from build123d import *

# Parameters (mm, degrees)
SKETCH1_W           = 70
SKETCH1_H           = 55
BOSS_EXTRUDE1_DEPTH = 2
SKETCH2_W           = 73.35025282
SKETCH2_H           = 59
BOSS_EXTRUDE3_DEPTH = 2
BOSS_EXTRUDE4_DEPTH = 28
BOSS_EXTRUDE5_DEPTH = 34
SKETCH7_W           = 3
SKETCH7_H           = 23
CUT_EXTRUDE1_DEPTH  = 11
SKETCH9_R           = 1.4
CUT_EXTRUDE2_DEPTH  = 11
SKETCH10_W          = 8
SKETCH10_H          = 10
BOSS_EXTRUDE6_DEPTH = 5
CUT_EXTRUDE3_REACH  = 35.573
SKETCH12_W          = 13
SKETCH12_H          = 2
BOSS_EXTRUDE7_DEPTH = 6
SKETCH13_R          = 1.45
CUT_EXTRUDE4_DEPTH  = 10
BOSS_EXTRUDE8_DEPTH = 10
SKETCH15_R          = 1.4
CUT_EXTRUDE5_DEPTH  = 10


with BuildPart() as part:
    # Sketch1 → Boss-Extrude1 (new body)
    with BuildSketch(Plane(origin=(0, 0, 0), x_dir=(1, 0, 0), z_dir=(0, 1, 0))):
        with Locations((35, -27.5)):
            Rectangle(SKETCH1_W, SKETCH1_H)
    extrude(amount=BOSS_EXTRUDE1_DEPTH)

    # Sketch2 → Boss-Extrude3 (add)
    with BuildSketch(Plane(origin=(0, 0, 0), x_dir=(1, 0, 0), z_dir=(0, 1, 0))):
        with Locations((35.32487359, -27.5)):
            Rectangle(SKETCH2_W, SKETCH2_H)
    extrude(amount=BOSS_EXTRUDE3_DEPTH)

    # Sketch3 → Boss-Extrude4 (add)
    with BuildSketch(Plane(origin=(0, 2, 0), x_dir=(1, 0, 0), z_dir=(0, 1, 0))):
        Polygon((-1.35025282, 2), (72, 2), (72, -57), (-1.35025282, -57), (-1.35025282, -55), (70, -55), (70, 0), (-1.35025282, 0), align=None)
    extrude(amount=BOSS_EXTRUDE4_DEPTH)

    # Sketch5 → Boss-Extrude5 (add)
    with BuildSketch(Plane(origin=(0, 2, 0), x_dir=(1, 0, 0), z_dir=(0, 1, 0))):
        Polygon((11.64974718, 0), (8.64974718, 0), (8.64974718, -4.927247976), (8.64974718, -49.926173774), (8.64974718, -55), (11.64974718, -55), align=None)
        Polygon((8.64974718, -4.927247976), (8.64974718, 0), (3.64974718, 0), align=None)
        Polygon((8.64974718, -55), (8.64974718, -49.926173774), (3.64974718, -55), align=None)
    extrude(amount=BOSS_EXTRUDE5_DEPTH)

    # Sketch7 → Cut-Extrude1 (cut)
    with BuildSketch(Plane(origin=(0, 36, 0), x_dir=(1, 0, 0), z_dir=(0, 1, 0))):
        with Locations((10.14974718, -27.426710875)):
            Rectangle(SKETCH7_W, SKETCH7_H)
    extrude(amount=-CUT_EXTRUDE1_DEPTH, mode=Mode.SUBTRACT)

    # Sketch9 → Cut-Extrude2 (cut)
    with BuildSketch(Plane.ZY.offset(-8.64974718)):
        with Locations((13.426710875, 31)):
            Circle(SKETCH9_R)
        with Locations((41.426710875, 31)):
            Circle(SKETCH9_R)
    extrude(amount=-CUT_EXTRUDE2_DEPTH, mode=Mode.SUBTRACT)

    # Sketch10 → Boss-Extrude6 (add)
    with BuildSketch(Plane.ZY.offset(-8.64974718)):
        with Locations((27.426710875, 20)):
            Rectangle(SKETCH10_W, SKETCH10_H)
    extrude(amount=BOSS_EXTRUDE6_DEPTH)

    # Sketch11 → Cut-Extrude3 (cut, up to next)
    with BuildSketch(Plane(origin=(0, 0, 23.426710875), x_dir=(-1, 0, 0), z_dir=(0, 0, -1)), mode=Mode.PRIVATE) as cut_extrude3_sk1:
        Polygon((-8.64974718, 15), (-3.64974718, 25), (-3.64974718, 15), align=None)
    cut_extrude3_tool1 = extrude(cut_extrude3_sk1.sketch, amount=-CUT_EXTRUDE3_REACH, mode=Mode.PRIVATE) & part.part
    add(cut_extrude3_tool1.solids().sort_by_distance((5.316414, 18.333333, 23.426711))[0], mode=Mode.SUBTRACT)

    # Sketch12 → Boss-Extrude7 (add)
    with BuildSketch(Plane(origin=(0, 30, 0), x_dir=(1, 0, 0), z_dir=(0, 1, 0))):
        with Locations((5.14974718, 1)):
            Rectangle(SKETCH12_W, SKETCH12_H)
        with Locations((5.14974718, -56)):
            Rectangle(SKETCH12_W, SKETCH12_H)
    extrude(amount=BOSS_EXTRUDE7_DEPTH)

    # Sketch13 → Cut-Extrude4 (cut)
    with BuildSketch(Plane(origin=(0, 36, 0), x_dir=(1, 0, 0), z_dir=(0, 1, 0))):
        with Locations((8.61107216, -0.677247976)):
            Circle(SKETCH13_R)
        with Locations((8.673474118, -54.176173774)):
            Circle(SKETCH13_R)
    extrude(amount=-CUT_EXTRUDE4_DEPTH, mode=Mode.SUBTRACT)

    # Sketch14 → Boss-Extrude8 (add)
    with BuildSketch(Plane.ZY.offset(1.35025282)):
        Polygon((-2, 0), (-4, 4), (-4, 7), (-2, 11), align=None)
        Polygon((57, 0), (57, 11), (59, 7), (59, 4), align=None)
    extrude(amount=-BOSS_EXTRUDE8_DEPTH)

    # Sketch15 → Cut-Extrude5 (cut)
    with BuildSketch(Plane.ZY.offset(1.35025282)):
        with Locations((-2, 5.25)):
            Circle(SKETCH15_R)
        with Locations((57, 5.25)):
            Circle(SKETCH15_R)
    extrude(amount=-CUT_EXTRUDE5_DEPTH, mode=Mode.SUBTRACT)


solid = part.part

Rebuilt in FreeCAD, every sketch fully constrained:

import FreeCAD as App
import Part
import Sketcher
from FreeCAD import Vector
Q = App.Units.Quantity


def add_polygon(sketch, points):
    """Adds a closed chain of lines whose ends are joined by coincident constraints."""
    first, n = sketch.GeometryCount, len(points)
    for a, b in zip(points, points[1:] + points[:1]):
        sketch.addGeometry(Part.LineSegment(App.Vector(*a, 0), App.Vector(*b, 0)), False)
    for i in range(n):
        sketch.addConstraint(Sketcher.Constraint("Coincident", first + i, 2, first + (i + 1) % n, 1))

doc = App.newDocument("Part")
params = doc.addObject("Spreadsheet::Sheet", "Params")
for row, (alias, value) in enumerate([
    ("sketch1_width", "70 mm"),
    ("sketch1_height", "55 mm"),
    ("pad1_length", "2 mm"),
    ("sketch2_height", "59 mm"),
    ("pad2_length", "2 mm"),
    ("sketch3_height", "2 mm"),
    ("sketch3_height2", "55 mm"),
    ("pad3_length", "28 mm"),
    ("sketch4_width", "8 mm"),
    ("sketch4_height", "55 mm"),
    ("pad4_length", "34 mm"),
    ("sketch5_width", "3 mm"),
    ("sketch5_height", "23 mm"),
    ("pocket1_length", "11 mm"),
    ("sketch6_diameter", "2.8 mm"),
    ("pocket2_length", "11 mm"),
    ("sketch7_width", "10 mm"),
    ("sketch7_height", "8 mm"),
    ("pad5_length", "5 mm"),
    ("sketch8_width", "5 mm"),
    ("sketch8_height", "10 mm"),
    ("sketch9_width", "13 mm"),
    ("sketch9_height", "2 mm"),
    ("pad6_length", "6 mm"),
    ("sketch10_diameter", "2.9 mm"),
    ("pocket4_length", "10 mm"),
    ("sketch11_width", "11 mm"),
    ("sketch11_width2", "3 mm"),
    ("pad7_length", "10 mm"),
    ("sketch12_diameter", "2.8 mm"),
    ("pocket5_length", "10 mm"),
], start=1):
    params.set(f"A{row}", alias)
    params.set(f"B{row}", "=" + value)
    params.setAlias(f"B{row}", alias)

body = doc.addObject("PartDesign::Body", "Body")

# Sketch on XZ plane
sketch1 = body.newObject("Sketcher::SketchObject", "Sketch")
sketch1.AttachmentSupport = (doc.getObject("XZ_Plane"), [""])
sketch1.MapMode = "FlatFace"
add_polygon(sketch1, [(0, 0), (0, 55), (70, 55), (70, 0)])  # lines 0-3
sketch1.addConstraint([
    Sketcher.Constraint("Vertical", 0),
    Sketcher.Constraint("Horizontal", 1),
    Sketcher.Constraint("Vertical", 2),
    Sketcher.Constraint("Horizontal", 3),
    Sketcher.Constraint("Coincident", 3, 2, -1, 1),
    Sketcher.Constraint("DistanceX", 1, 1, 1, 2, Q("70 mm")),
    Sketcher.Constraint("DistanceY", 0, 1, 0, 2, Q("55 mm")),
])
sketch1.setExpression("Constraints[9]", "Params.sketch1_width")
sketch1.setExpression("Constraints[10]", "Params.sketch1_height")
pad1 = body.newObject("PartDesign::Pad", "Pad")
pad1.Profile = sketch1
pad1.setExpression("Length", "Params.pad1_length")
pad1.Reversed = True

# Sketch on XZ plane
sketch2 = body.newObject("Sketcher::SketchObject", "Sketch001")
sketch2.AttachmentSupport = (doc.getObject("XZ_Plane"), [""])
sketch2.MapMode = "FlatFace"
add_polygon(sketch2, [(-1, -2), (-1, 57), (72, 57), (72, -2)])  # lines 0-3
sketch2.addConstraint([
    Sketcher.Constraint("Vertical", 0),
    Sketcher.Constraint("Horizontal", 1),
    Sketcher.Constraint("Vertical", 2),
    Sketcher.Constraint("Horizontal", 3),
    Sketcher.Constraint("DistanceY", 0, 1, 0, 2, Q("59 mm")),
    Sketcher.Constraint("DistanceY", -1, 1, 0, 2, Q("57 mm")),
    Sketcher.Constraint("DistanceX", -1, 1, 1, 2, Q("72 mm")),
    Sketcher.Constraint("DistanceX", 1, 1, 1, 2, Q("73.350253 mm")),
])
sketch2.setExpression("Constraints[8]", "Params.sketch2_height")
pad2 = body.newObject("PartDesign::Pad", "Pad001")
pad2.Profile = sketch2
pad2.setExpression("Length", "Params.pad2_length")
pad2.Reversed = True

# Sketch on XZ plane
sketch3 = body.newObject("Sketcher::SketchObject", "Sketch002")
sketch3.AttachmentSupport = (doc.getObject("XZ_Plane"), [""])
sketch3.MapMode = "FlatFace"
sketch3.AttachmentOffset = App.Placement(Vector(0, 0, -2), App.Rotation())
add_polygon(sketch3, [(72, -2), (-1.4, -2), (-1.4, 0), (70, 0), (70, 55), (-1.4, 55), (-1.4, 57), (72, 57)])  # lines 0-7
sketch3.addConstraint([
    Sketcher.Constraint("Horizontal", 0),
    Sketcher.Constraint("Vertical", 1),
    Sketcher.Constraint("Horizontal", 2),
    Sketcher.Constraint("Vertical", 3),
    Sketcher.Constraint("Horizontal", 4),
    Sketcher.Constraint("Vertical", 5),
    Sketcher.Constraint("Horizontal", 6),
    Sketcher.Constraint("Vertical", 7),
    Sketcher.Constraint("PointOnObject", 1, 2, -1),
    Sketcher.Constraint("Vertical", 1, 2, 4, 2),
    Sketcher.Constraint("Equal", 1, 5),
    Sketcher.Constraint("DistanceY", 1, 1, 1, 2, Q("2 mm")),
    Sketcher.Constraint("DistanceY", 3, 1, 3, 2, Q("55 mm")),
    Sketcher.Constraint("DistanceX", -1, 1, 2, 2, Q("70 mm")),
    Sketcher.Constraint("DistanceX", -1, 1, 6, 2, Q("72 mm")),
    Sketcher.Constraint("DistanceX", 0, 2, 0, 1, Q("73.350253 mm")),
])
sketch3.setExpression("Constraints[19]", "Params.sketch3_height")
sketch3.setExpression("Constraints[20]", "Params.sketch3_height2")
pad3 = body.newObject("PartDesign::Pad", "Pad002")
pad3.Profile = sketch3
pad3.setExpression("Length", "Params.pad3_length")
pad3.Reversed = True

# Sketch on XZ plane
sketch4 = body.newObject("Sketcher::SketchObject", "Sketch003")
sketch4.AttachmentSupport = (doc.getObject("XZ_Plane"), [""])
sketch4.MapMode = "FlatFace"
sketch4.AttachmentOffset = App.Placement(Vector(0, 0, -2), App.Rotation())
add_polygon(sketch4, [(11.649747, 0), (3.649747, 0), (8.649747, 4.927248), (8.649747, 49.926174), (3.649747, 55), (11.649747, 55)])  # lines 0-5
sketch4.addConstraint([
    Sketcher.Constraint("Horizontal", 0),
    Sketcher.Constraint("Vertical", 2),
    Sketcher.Constraint("Horizontal", 4),
    Sketcher.Constraint("Vertical", 5),
    Sketcher.Constraint("PointOnObject", 0, 2, -1),
    Sketcher.Constraint("Perpendicular", 1, 3),
    Sketcher.Constraint("Vertical", 0, 2, 3, 2),
    Sketcher.Constraint("DistanceX", 0, 2, 0, 1, Q("8 mm")),
    Sketcher.Constraint("DistanceY", 5, 2, 5, 1, Q("55 mm")),
    Sketcher.Constraint("DistanceX", 0, 2, 1, 2, Q("5 mm")),
    Sketcher.Constraint("DistanceY", 2, 1, 2, 2, Q("44.998926 mm")),
    Sketcher.Constraint("DistanceX", -1, 1, 0, 2, Q("3.649747 mm")),
])
sketch4.setExpression("Constraints[13]", "Params.sketch4_width")
sketch4.setExpression("Constraints[14]", "Params.sketch4_height")
pad4 = body.newObject("PartDesign::Pad", "Pad003")
pad4.Profile = sketch4
pad4.setExpression("Length", "Params.pad4_length")
pad4.Reversed = True

# Sketch on XZ plane
sketch5 = body.newObject("Sketcher::SketchObject", "Sketch004")
sketch5.AttachmentSupport = (doc.getObject("XZ_Plane"), [""])
sketch5.MapMode = "FlatFace"
sketch5.AttachmentOffset = App.Placement(Vector(0, 0, -36), App.Rotation())
add_polygon(sketch5, [(8.6, 15.9), (8.6, 38.9), (11.6, 38.9), (11.6, 15.9)])  # lines 0-3
sketch5.addConstraint([
    Sketcher.Constraint("Vertical", 0),
    Sketcher.Constraint("Horizontal", 1),
    Sketcher.Constraint("Vertical", 2),
    Sketcher.Constraint("Horizontal", 3),
    Sketcher.Constraint("DistanceX", 1, 1, 1, 2, Q("3 mm")),
    Sketcher.Constraint("DistanceY", 0, 1, 0, 2, Q("23 mm")),
    Sketcher.Constraint("DistanceY", -1, 1, 0, 2, Q("38.926711 mm")),
    Sketcher.Constraint("DistanceX", -1, 1, 0, 2, Q("8.649747 mm")),
])
sketch5.setExpression("Constraints[8]", "Params.sketch5_width")
sketch5.setExpression("Constraints[9]", "Params.sketch5_height")
pocket1 = body.newObject("PartDesign::Pocket", "Pocket")
pocket1.Profile = sketch5
pocket1.setExpression("Length", "Params.pocket1_length")
pocket1.Reversed = True

# Sketch on YZ plane
sketch6 = body.newObject("Sketcher::SketchObject", "Sketch005")
sketch6.AttachmentSupport = (doc.getObject("YZ_Plane"), [""])
sketch6.MapMode = "FlatFace"
sketch6.AttachmentOffset = App.Placement(Vector(0, 0, 8.649747), App.Rotation())
sketch6.addGeometry([
    Part.Circle(Vector(31, 13.4, 0), Vector(0, 0, 1), 1.4),
    Part.Circle(Vector(31, 41.4, 0), Vector(0, 0, 1), 1.4),
], False)
sketch6.addConstraint([
    Sketcher.Constraint("Equal", 0, 1),
    Sketcher.Constraint("Vertical", 0, 3, 1, 3),
    Sketcher.Constraint("Diameter", 0, Q("2.8 mm")),
    Sketcher.Constraint("DistanceX", -1, 1, 0, 3, Q("31 mm")),
    Sketcher.Constraint("DistanceY", 0, 3, 1, 3, Q("28 mm")),
    Sketcher.Constraint("DistanceY", -1, 1, 0, 3, Q("13.426711 mm")),
])
sketch6.setExpression("Constraints[2]", "Params.sketch6_diameter")
pocket2 = body.newObject("PartDesign::Pocket", "Pocket001")
pocket2.Profile = sketch6
pocket2.setExpression("Length", "Params.pocket2_length")
pocket2.Reversed = True

# Sketch on YZ plane
sketch7 = body.newObject("Sketcher::SketchObject", "Sketch006")
sketch7.AttachmentSupport = (doc.getObject("YZ_Plane"), [""])
sketch7.MapMode = "FlatFace"
sketch7.AttachmentOffset = App.Placement(Vector(0, 0, 8.649747), App.Rotation())
add_polygon(sketch7, [(25, 23), (15, 23), (15, 31), (25, 31)])  # lines 0-3
sketch7.addConstraint([
    Sketcher.Constraint("Horizontal", 0),
    Sketcher.Constraint("Vertical", 1),
    Sketcher.Constraint("Horizontal", 2),
    Sketcher.Constraint("Vertical", 3),
    Sketcher.Constraint("DistanceX", 0, 2, 0, 1, Q("10 mm")),
    Sketcher.Constraint("DistanceY", 1, 1, 1, 2, Q("8 mm")),
    Sketcher.Constraint("DistanceX", -1, 1, 0, 2, Q("15 mm")),
    Sketcher.Constraint("DistanceY", -1, 1, 0, 2, Q("23.426711 mm")),
])
sketch7.setExpression("Constraints[8]", "Params.sketch7_width")
sketch7.setExpression("Constraints[9]", "Params.sketch7_height")
pad5 = body.newObject("PartDesign::Pad", "Pad004")
pad5.Profile = sketch7
pad5.setExpression("Length", "Params.pad5_length")
pad5.Reversed = True

# Sketch on XY plane
sketch8 = body.newObject("Sketcher::SketchObject", "Sketch007")
sketch8.AttachmentSupport = (doc.getObject("XY_Plane"), [""])
sketch8.MapMode = "FlatFace"
sketch8.AttachmentOffset = App.Placement(Vector(0, 0, 23.426711), App.Rotation())
add_polygon(sketch8, [(4, 25), (9, 15), (4, 15)])  # lines 0-2
sketch8.addConstraint([
    Sketcher.Constraint("Horizontal", 1),
    Sketcher.Constraint("Vertical", 2),
    Sketcher.Constraint("DistanceX", 1, 2, 1, 1, Q("5 mm")),
    Sketcher.Constraint("DistanceY", 2, 1, 2, 2, Q("10 mm")),
    Sketcher.Constraint("DistanceY", -1, 1, 0, 2, Q("15 mm")),
    Sketcher.Constraint("DistanceX", -1, 1, 0, 2, Q("8.649747 mm")),
])
sketch8.setExpression("Constraints[5]", "Params.sketch8_width")
sketch8.setExpression("Constraints[6]", "Params.sketch8_height")
pocket3 = body.newObject("PartDesign::Pocket", "Pocket002")
pocket3.Profile = sketch8
pocket3.Type = "UpToFirst"
pocket3.Reversed = True

# Sketch on XZ plane
sketch9 = body.newObject("Sketcher::SketchObject", "Sketch008")
sketch9.AttachmentSupport = (doc.getObject("XZ_Plane"), [""])
sketch9.MapMode = "FlatFace"
sketch9.AttachmentOffset = App.Placement(Vector(0, 0, -30), App.Rotation())
add_polygon(sketch9, [(-1.4, -2), (-1.4, 0), (11.6, 0), (11.6, -2)])  # lines 0-3
add_polygon(sketch9, [(-1.4, 55), (-1.4, 57), (11.6, 57), (11.6, 55)])  # lines 4-7
sketch9.addConstraint([
    Sketcher.Constraint("Vertical", 0),
    Sketcher.Constraint("Horizontal", 1),
    Sketcher.Constraint("Vertical", 2),
    Sketcher.Constraint("Horizontal", 3),
    Sketcher.Constraint("Vertical", 4),
    Sketcher.Constraint("Horizontal", 5),
    Sketcher.Constraint("Vertical", 6),
    Sketcher.Constraint("Horizontal", 7),
    Sketcher.Constraint("PointOnObject", 0, 2, -1),
    Sketcher.Constraint("Vertical", 3, 2, 4, 2),
    Sketcher.Constraint("Vertical", 2, 2, 5, 2),
    Sketcher.Constraint("Equal", 2, 4),
    Sketcher.Constraint("DistanceX", 1, 1, 1, 2, Q("13 mm")),
    Sketcher.Constraint("DistanceY", 0, 1, 0, 2, Q("2 mm")),
    Sketcher.Constraint("DistanceY", -1, 1, 4, 2, Q("57 mm")),
    Sketcher.Constraint("DistanceX", 0, 2, -1, 1, Q("1.350253 mm")),
])
sketch9.setExpression("Constraints[20]", "Params.sketch9_width")
sketch9.setExpression("Constraints[21]", "Params.sketch9_height")
pad6 = body.newObject("PartDesign::Pad", "Pad005")
pad6.Profile = sketch9
pad6.setExpression("Length", "Params.pad6_length")
pad6.Reversed = True

# Sketch on XZ plane
sketch10 = body.newObject("Sketcher::SketchObject", "Sketch009")
sketch10.AttachmentSupport = (doc.getObject("XZ_Plane"), [""])
sketch10.MapMode = "FlatFace"
sketch10.AttachmentOffset = App.Placement(Vector(0, 0, -36), App.Rotation())
sketch10.addGeometry([
    Part.Circle(Vector(8.6, 0.7, 0), Vector(0, 0, 1), 1.4),
    Part.Circle(Vector(8.7, 54.2, 0), Vector(0, 0, 1), 1.4),
], False)
sketch10.addConstraint([
    Sketcher.Constraint("Equal", 0, 1),
    Sketcher.Constraint("Diameter", 0, Q("2.9 mm")),
    Sketcher.Constraint("DistanceX", 0, 3, 1, 3, Q("0.062402 mm")),
    Sketcher.Constraint("DistanceX", -1, 1, 0, 3, Q("8.611072 mm")),
    Sketcher.Constraint("DistanceY", -1, 1, 0, 3, Q("0.677248 mm")),
    Sketcher.Constraint("DistanceY", -1, 1, 1, 3, Q("54.176174 mm")),
])
sketch10.setExpression("Constraints[1]", "Params.sketch10_diameter")
pocket4 = body.newObject("PartDesign::Pocket", "Pocket003")
pocket4.Profile = sketch10
pocket4.setExpression("Length", "Params.pocket4_length")
pocket4.Reversed = True

# Sketch on YZ plane
sketch11 = body.newObject("Sketcher::SketchObject", "Sketch010")
sketch11.AttachmentSupport = (doc.getObject("YZ_Plane"), [""])
sketch11.MapMode = "FlatFace"
sketch11.AttachmentOffset = App.Placement(Vector(0, 0, -1.350253), App.Rotation())
add_polygon(sketch11, [(4, -4), (0, -2), (11, -2), (7, -4)])  # lines 0-3
add_polygon(sketch11, [(11, 57), (0, 57), (4, 59), (7, 59)])  # lines 4-7
sketch11.addConstraint([
    Sketcher.Constraint("Horizontal", 1),
    Sketcher.Constraint("Horizontal", 3),
    Sketcher.Constraint("Horizontal", 4),
    Sketcher.Constraint("Horizontal", 6),
    Sketcher.Constraint("PointOnObject", 0, 2, -2),
    Sketcher.Constraint("PointOnObject", 4, 2, -2),
    Sketcher.Constraint("Parallel", 2, 5),
    Sketcher.Constraint("Parallel", 0, 7),
    Sketcher.Constraint("Vertical", 3, 2, 5, 2),
    Sketcher.Constraint("Vertical", 2, 2, 6, 2),
    Sketcher.Constraint("Vertical", 1, 2, 7, 2),
    Sketcher.Constraint("DistanceX", 1, 1, 1, 2, Q("11 mm")),
    Sketcher.Constraint("DistanceX", 3, 2, 3, 1, Q("3 mm")),
    Sketcher.Constraint("DistanceY", 0, 2, -1, 1, Q("2 mm")),
    Sketcher.Constraint("DistanceY", 2, 2, -1, 1, Q("4 mm")),
    Sketcher.Constraint("DistanceY", -1, 1, 4, 2, Q("57 mm")),
])
sketch11.setExpression("Constraints[19]", "Params.sketch11_width")
sketch11.setExpression("Constraints[20]", "Params.sketch11_width2")
pad7 = body.newObject("PartDesign::Pad", "Pad006")
pad7.Profile = sketch11
pad7.setExpression("Length", "Params.pad7_length")

# Sketch on YZ plane
sketch12 = body.newObject("Sketcher::SketchObject", "Sketch011")
sketch12.AttachmentSupport = (doc.getObject("YZ_Plane"), [""])
sketch12.MapMode = "FlatFace"
sketch12.AttachmentOffset = App.Placement(Vector(0, 0, -1.350253), App.Rotation())
sketch12.addGeometry([
    Part.Circle(Vector(5.2, -2, 0), Vector(0, 0, 1), 1.4),
    Part.Circle(Vector(5.2, 57, 0), Vector(0, 0, 1), 1.4),
], False)
sketch12.addConstraint([
    Sketcher.Constraint("Equal", 0, 1),
    Sketcher.Constraint("Vertical", 0, 3, 1, 3),
    Sketcher.Constraint("Diameter", 0, Q("2.8 mm")),
    Sketcher.Constraint("DistanceY", 0, 3, -1, 1, Q("2 mm")),
    Sketcher.Constraint("DistanceY", -1, 1, 1, 3, Q("57 mm")),
    Sketcher.Constraint("DistanceX", -1, 1, 0, 3, Q("5.25 mm")),
])
sketch12.setExpression("Constraints[2]", "Params.sketch12_diameter")
pocket5 = body.newObject("PartDesign::Pocket", "Pocket004")
pocket5.Profile = sketch12
pocket5.setExpression("Length", "Params.pocket5_length")
pocket5.Reversed = True

doc.recompute()
